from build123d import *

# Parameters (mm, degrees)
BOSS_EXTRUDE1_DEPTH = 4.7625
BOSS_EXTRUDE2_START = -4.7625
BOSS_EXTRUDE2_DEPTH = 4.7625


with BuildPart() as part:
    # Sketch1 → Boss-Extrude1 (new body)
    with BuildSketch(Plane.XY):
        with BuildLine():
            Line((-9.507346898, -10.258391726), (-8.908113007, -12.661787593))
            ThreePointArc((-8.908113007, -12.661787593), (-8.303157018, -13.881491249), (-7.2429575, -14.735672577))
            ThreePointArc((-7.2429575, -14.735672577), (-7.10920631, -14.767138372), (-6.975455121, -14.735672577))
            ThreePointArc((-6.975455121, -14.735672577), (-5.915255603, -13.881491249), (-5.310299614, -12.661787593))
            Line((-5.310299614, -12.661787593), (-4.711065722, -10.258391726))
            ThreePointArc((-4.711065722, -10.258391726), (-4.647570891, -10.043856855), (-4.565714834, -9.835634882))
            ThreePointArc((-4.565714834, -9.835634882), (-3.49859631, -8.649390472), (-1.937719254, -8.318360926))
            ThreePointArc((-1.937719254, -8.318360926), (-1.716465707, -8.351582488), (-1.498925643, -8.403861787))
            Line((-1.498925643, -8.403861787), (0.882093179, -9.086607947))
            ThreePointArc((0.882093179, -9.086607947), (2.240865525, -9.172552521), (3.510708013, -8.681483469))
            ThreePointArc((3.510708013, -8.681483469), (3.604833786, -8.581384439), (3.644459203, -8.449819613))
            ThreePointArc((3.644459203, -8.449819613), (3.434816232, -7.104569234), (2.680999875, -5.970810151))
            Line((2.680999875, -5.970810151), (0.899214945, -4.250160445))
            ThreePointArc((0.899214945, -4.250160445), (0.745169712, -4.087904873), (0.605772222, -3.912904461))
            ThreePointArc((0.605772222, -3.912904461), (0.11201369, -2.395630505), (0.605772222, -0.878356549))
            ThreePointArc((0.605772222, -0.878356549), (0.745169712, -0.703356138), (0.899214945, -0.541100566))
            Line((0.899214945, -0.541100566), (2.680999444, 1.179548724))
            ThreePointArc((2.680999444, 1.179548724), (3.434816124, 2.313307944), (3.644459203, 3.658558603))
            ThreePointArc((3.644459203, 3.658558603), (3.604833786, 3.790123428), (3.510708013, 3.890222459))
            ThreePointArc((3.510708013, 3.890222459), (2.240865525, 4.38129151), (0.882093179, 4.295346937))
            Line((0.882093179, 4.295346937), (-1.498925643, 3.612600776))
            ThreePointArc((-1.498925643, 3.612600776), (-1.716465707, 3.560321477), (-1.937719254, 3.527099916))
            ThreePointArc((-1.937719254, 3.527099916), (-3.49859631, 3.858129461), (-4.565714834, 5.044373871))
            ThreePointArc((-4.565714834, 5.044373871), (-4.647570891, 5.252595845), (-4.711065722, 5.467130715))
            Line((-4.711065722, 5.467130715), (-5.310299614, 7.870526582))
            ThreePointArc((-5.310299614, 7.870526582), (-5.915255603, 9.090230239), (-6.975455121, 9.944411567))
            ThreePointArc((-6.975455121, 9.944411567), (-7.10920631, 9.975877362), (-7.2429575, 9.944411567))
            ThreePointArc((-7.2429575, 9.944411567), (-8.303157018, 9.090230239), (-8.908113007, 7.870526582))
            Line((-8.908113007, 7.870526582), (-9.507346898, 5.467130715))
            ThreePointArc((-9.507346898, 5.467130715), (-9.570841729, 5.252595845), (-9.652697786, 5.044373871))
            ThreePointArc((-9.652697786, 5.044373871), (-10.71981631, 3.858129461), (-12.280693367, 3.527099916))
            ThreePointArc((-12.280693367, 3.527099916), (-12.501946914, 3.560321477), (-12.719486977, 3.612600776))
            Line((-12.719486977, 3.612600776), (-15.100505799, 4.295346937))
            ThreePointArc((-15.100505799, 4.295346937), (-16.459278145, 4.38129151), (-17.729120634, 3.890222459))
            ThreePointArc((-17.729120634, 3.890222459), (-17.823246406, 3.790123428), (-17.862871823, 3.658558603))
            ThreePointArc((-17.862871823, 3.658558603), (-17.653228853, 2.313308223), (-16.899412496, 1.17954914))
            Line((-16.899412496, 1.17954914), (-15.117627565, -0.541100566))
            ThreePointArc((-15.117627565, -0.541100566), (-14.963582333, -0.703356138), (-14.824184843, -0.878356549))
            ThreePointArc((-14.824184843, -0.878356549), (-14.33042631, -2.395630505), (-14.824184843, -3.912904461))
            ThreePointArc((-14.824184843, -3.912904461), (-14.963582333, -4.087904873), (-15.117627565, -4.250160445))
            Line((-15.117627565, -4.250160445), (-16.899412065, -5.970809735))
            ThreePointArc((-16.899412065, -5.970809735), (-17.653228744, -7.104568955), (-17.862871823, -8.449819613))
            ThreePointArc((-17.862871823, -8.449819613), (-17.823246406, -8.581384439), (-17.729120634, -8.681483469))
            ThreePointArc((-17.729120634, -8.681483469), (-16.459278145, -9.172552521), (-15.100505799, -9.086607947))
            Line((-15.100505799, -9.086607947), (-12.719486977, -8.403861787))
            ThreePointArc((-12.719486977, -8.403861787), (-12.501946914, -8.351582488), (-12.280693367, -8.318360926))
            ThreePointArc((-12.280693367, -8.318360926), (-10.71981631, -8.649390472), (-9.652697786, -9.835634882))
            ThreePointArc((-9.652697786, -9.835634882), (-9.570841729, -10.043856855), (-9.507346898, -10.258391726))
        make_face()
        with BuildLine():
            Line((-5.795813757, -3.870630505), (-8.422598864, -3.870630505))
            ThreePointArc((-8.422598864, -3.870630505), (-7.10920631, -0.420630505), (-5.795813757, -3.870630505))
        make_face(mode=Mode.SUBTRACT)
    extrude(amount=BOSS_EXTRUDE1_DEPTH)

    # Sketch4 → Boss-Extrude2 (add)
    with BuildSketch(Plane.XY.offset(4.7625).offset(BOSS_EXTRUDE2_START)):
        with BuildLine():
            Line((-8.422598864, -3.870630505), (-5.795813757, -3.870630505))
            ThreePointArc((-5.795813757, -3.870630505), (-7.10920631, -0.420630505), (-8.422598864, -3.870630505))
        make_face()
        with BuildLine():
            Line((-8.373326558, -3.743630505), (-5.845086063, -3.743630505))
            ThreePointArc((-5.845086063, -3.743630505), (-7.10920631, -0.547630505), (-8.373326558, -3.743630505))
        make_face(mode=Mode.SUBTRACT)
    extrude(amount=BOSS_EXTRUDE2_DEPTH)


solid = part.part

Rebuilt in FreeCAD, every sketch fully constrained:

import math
import FreeCAD as App
import Part
import Sketcher
Q = App.Units.Quantity

doc = App.newDocument("Part")
params = doc.addObject("Spreadsheet::Sheet", "Params")
for row, (alias, value) in enumerate([
    ("sketch1_radius", "0.125 in"),
    ("pad1_length", "0.1875 in"),
    ("pad2_length", "0.1875 in"),
], start=1):
    params.set(f"A{row}", alias)
    params.set(f"B{row}", "=" + value)
    params.setAlias(f"B{row}", alias)

body = doc.addObject("PartDesign::Body", "Body")

# Sketch on XY plane
sketch1 = doc.addObject("Sketcher::SketchObject", "Sketch")
body.addObject(sketch1)
sketch1.AttachmentSupport = (doc.XY_Plane, [""])
sketch1.MapMode = "FlatFace"
sketch1.addGeometry(Part.LineSegment(App.Vector(-9.507347, -10.258392, 0), App.Vector(-8.908113, -12.661788, 0)), False)
sketch1.addGeometry(Part.ArcOfCircle(Part.Circle(App.Vector(-5.827424, -11.893686, 0), App.Vector(0, 0, 1), 3.175), math.radians(-166), math.radians(-116.476921)), False)
sketch1.addGeometry(Part.ArcOfCircle(Part.Circle(App.Vector(-7.109206, -14.467138, 0), App.Vector(0, 0, 1), 0.3), math.radians(-116.476921), math.radians(-63.523078)), False)
sketch1.addGeometry(Part.ArcOfCircle(Part.Circle(App.Vector(-8.390989, -11.893686, 0), App.Vector(0, 0, 1), 3.175), math.radians(-63.523079), math.radians(-14)), False)
sketch1.addGeometry(Part.LineSegment(App.Vector(-5.3103, -12.661788, 0), App.Vector(-4.711066, -10.258392, 0)), False)
sketch1.addGeometry(Part.ArcOfCircle(Part.Circle(App.Vector(-2.209546, -10.882091, 0), App.Vector(0, 0, 1), 2.5781), math.radians(156.052343), math.radians(166)), False)
sketch1.addGeometry(Part.ArcOfCircle(Part.Circle(App.Vector(-2.209546, -10.882091, 0), App.Vector(0, 0, 1), 2.5781), math.radians(83.947657), math.radians(156.052343)), False)
sketch1.addGeometry(Part.ArcOfCircle(Part.Circle(App.Vector(-2.209546, -10.882091, 0), App.Vector(0, 0, 1), 2.5781), math.radians(74), math.radians(83.947657)), False)
sketch1.addGeometry(Part.LineSegment(App.Vector(-1.498926, -8.403862, 0), App.Vector(0.882093, -9.086608, 0)), False)
sketch1.addGeometry(Part.ArcOfCircle(Part.Circle(App.Vector(1.757242, -6.034602, 0), App.Vector(0, 0, 1), 3.175), math.radians(-106), math.radians(-56.476921)), False)
sketch1.addGeometry(Part.ArcOfCircle(Part.Circle(App.Vector(3.345026, -8.431384, 0), App.Vector(0, 0, 1), 0.3), math.radians(-56.476922), math.radians(-3.523078)), False)
sketch1.addGeometry(Part.ArcOfCircle(Part.Circle(App.Vector(0.47546, -8.254714, 0), App.Vector(0, 0, 1), 3.175), math.radians(-3.523079), math.radians(46)), False)
sketch1.addGeometry(Part.LineSegment(App.Vector(2.681, -5.97081, 0), App.Vector(0.899215, -4.25016, 0)), False)
sketch1.addGeometry(Part.ArcOfCircle(Part.Circle(App.Vector(2.690114, -2.395631, 0), App.Vector(0, 0, 1), 2.5781), math.radians(-143.947657), math.radians(-134)), False)
sketch1.addGeometry(Part.ArcOfCircle(Part.Circle(App.Vector(2.690114, -2.395631, 0), App.Vector(0, 0, 1), 2.5781), math.radians(143.947657), math.radians(216.052343)), False)
sketch1.addGeometry(Part.ArcOfCircle(Part.Circle(App.Vector(2.690114, -2.395631, 0), App.Vector(0, 0, 1), 2.5781), math.radians(134), math.radians(143.947657)), False)
sketch1.addGeometry(Part.LineSegment(App.Vector(0.899215, -0.541101, 0), App.Vector(2.680999, 1.179549, 0)), False)
sketch1.addGeometry(Part.ArcOfCircle(Part.Circle(App.Vector(0.47546, 3.463453, 0), App.Vector(0, 0, 1), 3.175), math.radians(-46.000011), math.radians(3.523079)), False)
sketch1.addGeometry(Part.ArcOfCircle(Part.Circle(App.Vector(3.345026, 3.640123, 0), App.Vector(0, 0, 1), 0.3), math.radians(3.523079), math.radians(56.476921)), False)
sketch1.addGeometry(Part.ArcOfCircle(Part.Circle(App.Vector(1.757242, 1.243341, 0), App.Vector(0, 0, 1), 3.175), math.radians(56.476921), math.radians(106)), False)
sketch1.addGeometry(Part.LineSegment(App.Vector(0.882093, 4.295347, 0), App.Vector(-1.498926, 3.612601, 0)), False)
sketch1.addGeometry(Part.ArcOfCircle(Part.Circle(App.Vector(-2.209546, 6.090829, 0), App.Vector(0, 0, 1), 2.5781), math.radians(-83.947657), math.radians(-74)), False)
sketch1.addGeometry(Part.ArcOfCircle(Part.Circle(App.Vector(-2.209546, 6.09083, 0), App.Vector(0, 0, 1), 2.5781), math.radians(-156.052343), math.radians(-83.947657)), False)
sketch1.addGeometry(Part.ArcOfCircle(Part.Circle(App.Vector(-2.209546, 6.09083, 0), App.Vector(0, 0, 1), 2.5781), math.radians(-166), math.radians(-156.052343)), False)
sketch1.addGeometry(Part.LineSegment(App.Vector(-4.711066, 5.467131, 0), App.Vector(-5.3103, 7.870527, 0)), False)
sketch1.addGeometry(Part.ArcOfCircle(Part.Circle(App.Vector(-8.390989, 7.102425, 0), App.Vector(0, 0, 1), 3.175), math.radians(14), math.radians(63.523079)), False)
sketch1.addGeometry(Part.ArcOfCircle(Part.Circle(App.Vector(-7.109206, 9.675877, 0), App.Vector(0, 0, 1), 0.3), math.radians(63.523078), math.radians(116.476921)), False)
sketch1.addGeometry(Part.ArcOfCircle(Part.Circle(App.Vector(-5.827424, 7.102425, 0), App.Vector(0, 0, 1), 3.175), math.radians(116.476921), math.radians(166)), False)
sketch1.addGeometry(Part.LineSegment(App.Vector(-8.908113, 7.870527, 0), App.Vector(-9.507347, 5.467131, 0)), False)
sketch1.addGeometry(Part.ArcOfCircle(Part.Circle(App.Vector(-12.008866, 6.09083, 0), App.Vector(0, 0, 1), 2.5781), math.radians(-23.947657), math.radians(-14)), False)
sketch1.addGeometry(Part.ArcOfCircle(Part.Circle(App.Vector(-12.008866, 6.09083, 0), App.Vector(0, 0, 1), 2.5781), math.radians(-96.052343), math.radians(-23.947657)), False)
sketch1.addGeometry(Part.ArcOfCircle(Part.Circle(App.Vector(-12.008866, 6.090829, 0), App.Vector(0, 0, 1), 2.5781), math.radians(-106), math.radians(-96.052343)), False)
sketch1.addGeometry(Part.LineSegment(App.Vector(-12.719487, 3.612601, 0), App.Vector(-15.100506, 4.295347, 0)), False)
sketch1.addGeometry(Part.ArcOfCircle(Part.Circle(App.Vector(-15.975654, 1.243341, 0), App.Vector(0, 0, 1), 3.175), math.radians(74), math.radians(123.523079)), False)
sketch1.addGeometry(Part.ArcOfCircle(Part.Circle(App.Vector(-17.563439, 3.640123, 0), App.Vector(0, 0, 1), 0.3), math.radians(123.523079), math.radians(176.476921)), False)
sketch1.addGeometry(Part.ArcOfCircle(Part.Circle(App.Vector(-14.693872, 3.463453, 0), App.Vector(0, 0, 1), 3.175), math.radians(176.476921), math.radians(226)), False)
sketch1.addGeometry(Part.LineSegment(App.Vector(-16.899412, 1.179549, 0), App.Vector(-15.117628, -0.541101, 0)), False)
sketch1.addGeometry(Part.ArcOfCircle(Part.Circle(App.Vector(-16.908526, -2.395631, 0), App.Vector(0, 0, 1), 2.5781), math.radians(36.052343), math.radians(46)), False)
sketch1.addGeometry(Part.ArcOfCircle(Part.Circle(App.Vector(-16.908526, -2.395631, 0), App.Vector(0, 0, 1), 2.5781), math.radians(-36.052343), math.radians(36.052343)), False)
sketch1.addGeometry(Part.ArcOfCircle(Part.Circle(App.Vector(-16.908526, -2.39563, 0), App.Vector(0, 0, 1), 2.5781), math.radians(-46), math.radians(-36.052343)), False)
sketch1.addGeometry(Part.LineSegment(App.Vector(-15.117628, -4.25016, 0), App.Vector(-16.899412, -5.97081, 0)), False)
sketch1.addGeometry(Part.ArcOfCircle(Part.Circle(App.Vector(-14.693872, -8.254714, 0), App.Vector(0, 0, 1), 3.175), math.radians(133.999989), math.radians(183.523079)), False)
sketch1.addGeometry(Part.ArcOfCircle(Part.Circle(App.Vector(-17.563439, -8.431384, 0), App.Vector(0, 0, 1), 0.3), math.radians(-176.476921), math.radians(-123.523079)), False)
sketch1.addGeometry(Part.ArcOfCircle(Part.Circle(App.Vector(-15.975654, -6.034602, 0), App.Vector(0, 0, 1), 3.175), math.radians(-123.523079), math.radians(-74)), False)
sketch1.addGeometry(Part.LineSegment(App.Vector(-15.100506, -9.086608, 0), App.Vector(-12.719487, -8.403862, 0)), False)
sketch1.addGeometry(Part.ArcOfCircle(Part.Circle(App.Vector(-12.008866, -10.882091, 0), App.Vector(0, 0, 1), 2.5781), math.radians(96.052343), math.radians(106)), False)
sketch1.addGeometry(Part.ArcOfCircle(Part.Circle(App.Vector(-12.008866, -10.882091, 0), App.Vector(0, 0, 1), 2.5781), math.radians(23.947657), math.radians(96.052343)), False)
sketch1.addGeometry(Part.ArcOfCircle(Part.Circle(App.Vector(-12.008866, -10.882091, 0), App.Vector(0, 0, 1), 2.5781), math.radians(14), math.radians(23.947657)), False)
sketch1.addGeometry(Part.ArcOfCircle(Part.Circle(App.Vector(-7.109206, -2.395631, 0), App.Vector(0, 0, 1), 1.975), math.radians(-48.316993), math.radians(228.316993)), False)
sketch1.addGeometry(Part.LineSegment(App.Vector(-5.795814, -3.870631, 0), App.Vector(-8.422599, -3.870631, 0)), False)
sketch1.addConstraint(Sketcher.Constraint("Tangent", 0, 2, 1, 1))
sketch1.addConstraint(Sketcher.Constraint("Tangent", 1, 2, 2, 1))
sketch1.addConstraint(Sketcher.Constraint("Tangent", 2, 2, 3, 1))
sketch1.addConstraint(Sketcher.Constraint("Tangent", 3, 2, 4, 1))
sketch1.addConstraint(Sketcher.Constraint("Tangent", 4, 2, 5, 2))
sketch1.addConstraint(Sketcher.Constraint("Tangent", 5, 1, 6, 2))
sketch1.addConstraint(Sketcher.Constraint("Tangent", 6, 1, 7, 2))
sketch1.addConstraint(Sketcher.Constraint("Tangent", 7, 1, 8, 1))
sketch1.addConstraint(Sketcher.Constraint("Tangent", 8, 2, 9, 1))
sketch1.addConstraint(Sketcher.Constraint("Tangent", 9, 2, 10, 1))
sketch1.addConstraint(Sketcher.Constraint("Tangent", 10, 2, 11, 1))
sketch1.addConstraint(Sketcher.Constraint("Tangent", 11, 2, 12, 1))
sketch1.addConstraint(Sketcher.Constraint("Tangent", 12, 2, 13, 2))
sketch1.addConstraint(Sketcher.Constraint("Tangent", 13, 1, 14, 2))
sketch1.addConstraint(Sketcher.Constraint("Tangent", 14, 1, 15, 2))
sketch1.addConstraint(Sketcher.Constraint("Tangent", 15, 1, 16, 1))
sketch1.addConstraint(Sketcher.Constraint("Tangent", 16, 2, 17, 1))
sketch1.addConstraint(Sketcher.Constraint("Tangent", 17, 2, 18, 1))
sketch1.addConstraint(Sketcher.Constraint("Tangent", 18, 2, 19, 1))
sketch1.addConstraint(Sketcher.Constraint("Tangent", 19, 2, 20, 1))
sketch1.addConstraint(Sketcher.Constraint("Tangent", 20, 2, 21, 2))
sketch1.addConstraint(Sketcher.Constraint("Tangent", 21, 1, 22, 2))
sketch1.addConstraint(Sketcher.Constraint("Tangent", 22, 1, 23, 2))
sketch1.addConstraint(Sketcher.Constraint("Tangent", 23, 1, 24, 1))
sketch1.addConstraint(Sketcher.Constraint("Tangent", 24, 2, 25, 1))
sketch1.addConstraint(Sketcher.Constraint("Tangent", 25, 2, 26, 1))
sketch1.addConstraint(Sketcher.Constraint("Tangent", 26, 2, 27, 1))
sketch1.addConstraint(Sketcher.Constraint("Tangent", 27, 2, 28, 1))
sketch1.addConstraint(Sketcher.Constraint("Tangent", 28, 2, 29, 2))
sketch1.addConstraint(Sketcher.Constraint("Tangent", 29, 1, 30, 2))
sketch1.addConstraint(Sketcher.Constraint("Tangent", 30, 1, 31, 2))
sketch1.addConstraint(Sketcher.Constraint("Tangent", 31, 1, 32, 1))
sketch1.addConstraint(Sketcher.Constraint("Tangent", 32, 2, 33, 1))
sketch1.addConstraint(Sketcher.Constraint("Tangent", 33, 2, 34, 1))
sketch1.addConstraint(Sketcher.Constraint("Tangent", 34, 2, 35, 1))
sketch1.addConstraint(Sketcher.Constraint("Tangent", 35, 2, 36, 1))
sketch1.addConstraint(Sketcher.Constraint("Tangent", 36, 2, 37, 2))
sketch1.addConstraint(Sketcher.Constraint("Tangent", 37, 1, 38, 2))
sketch1.addConstraint(Sketcher.Constraint("Tangent", 38, 1, 39, 2))
sketch1.addConstraint(Sketcher.Constraint("Tangent", 39, 1, 40, 1))
sketch1.addConstraint(Sketcher.Constraint("Tangent", 40, 2, 41, 1))
sketch1.addConstraint(Sketcher.Constraint("Tangent", 41, 2, 42, 1))
sketch1.addConstraint(Sketcher.Constraint("Tangent", 42, 2, 43, 1))
sketch1.addConstraint(Sketcher.Constraint("Tangent", 43, 2, 44, 1))
sketch1.addConstraint(Sketcher.Constraint("Tangent", 44, 2, 45, 2))
sketch1.addConstraint(Sketcher.Constraint("Tangent", 45, 1, 46, 2))
sketch1.addConstraint(Sketcher.Constraint("Tangent", 46, 1, 47, 2))
sketch1.addConstraint(Sketcher.Constraint("Tangent", 47, 1, 0, 1))
sketch1.addConstraint(Sketcher.Constraint("Coincident", 48, 1, 49, 1))
sketch1.addConstraint(Sketcher.Constraint("Coincident", 49, 2, 48, 2))
sketch1.addConstraint(Sketcher.Constraint("Horizontal", 49))
sketch1.addConstraint(Sketcher.Constraint("Coincident", 7, 3, 5, 3))
sketch1.addConstraint(Sketcher.Constraint("Coincident", 15, 3, 13, 3))
sketch1.addConstraint(Sketcher.Constraint("Coincident", 23, 3, 21, 3))
sketch1.addConstraint(Sketcher.Constraint("Coincident", 31, 3, 29, 3))
sketch1.addConstraint(Sketcher.Constraint("Coincident", 39, 3, 37, 3))
sketch1.addConstraint(Sketcher.Constraint("Coincident", 47, 3, 45, 3))
sketch1.addConstraint(Sketcher.Constraint("Equal", 1, 3))
sketch1.addConstraint(Sketcher.Constraint("Equal", 3, 9))
sketch1.addConstraint(Sketcher.Constraint("Equal", 2, 10))
sketch1.addConstraint(Sketcher.Constraint("Equal", 9, 11))
sketch1.addConstraint(Sketcher.Constraint("Equal", 7, 13))
sketch1.addConstraint(Sketcher.Constraint("Equal", 11, 17))
sketch1.addConstraint(Sketcher.Constraint("Equal", 10, 18))
sketch1.addConstraint(Sketcher.Constraint("Equal", 17, 19))
sketch1.addConstraint(Sketcher.Constraint("Equal", 15, 21))
sketch1.addConstraint(Sketcher.Constraint("Equal", 19, 25))
sketch1.addConstraint(Sketcher.Constraint("Equal", 18, 26))
sketch1.addConstraint(Sketcher.Constraint("Equal", 25, 27))
sketch1.addConstraint(Sketcher.Constraint("Equal", 23, 29))
sketch1.addConstraint(Sketcher.Constraint("Equal", 27, 33))
sketch1.addConstraint(Sketcher.Constraint("Equal", 26, 34))
sketch1.addConstraint(Sketcher.Constraint("Equal", 33, 35))
sketch1.addConstraint(Sketcher.Constraint("Equal", 31, 37))
sketch1.addConstraint(Sketcher.Constraint("Equal", 35, 41))
sketch1.addConstraint(Sketcher.Constraint("Equal", 34, 42))
sketch1.addConstraint(Sketcher.Constraint("Equal", 41, 43))
sketch1.addConstraint(Sketcher.Constraint("Equal", 39, 45))
sketch1.addConstraint(Sketcher.Constraint("Parallel", 0, 24))
sketch1.addConstraint(Sketcher.Constraint("Parallel", 4, 28))
sketch1.addConstraint(Sketcher.Constraint("Parallel", 8, 32))
sketch1.addConstraint(Sketcher.Constraint("Parallel", 12, 36))
sketch1.addConstraint(Sketcher.Constraint("Parallel", 16, 40))
sketch1.addConstraint(Sketcher.Constraint("Parallel", 20, 44))
sketch1.addConstraint(Sketcher.Constraint("Horizontal", 1, 3, 3, 3))
sketch1.addConstraint(Sketcher.Constraint("Horizontal", 25, 3, 27, 3))
sketch1.addConstraint(Sketcher.Constraint("Horizontal", 23, 3, 29, 3))
sketch1.addConstraint(Sketcher.Constraint("Horizontal", 19, 3, 33, 3))
sketch1.addConstraint(Sketcher.Constraint("Horizontal", 18, 3, 34, 3))
sketch1.addConstraint(Sketcher.Constraint("Horizontal", 17, 3, 35, 3))
sketch1.addConstraint(Sketcher.Constraint("Horizontal", 15, 3, 37, 3))
sketch1.addConstraint(Sketcher.Constraint("Horizontal", 11, 3, 41, 3))
sketch1.addConstraint(Sketcher.Constraint("Horizontal", 10, 3, 42, 3))
sketch1.addConstraint(Sketcher.Constraint("Horizontal", 9, 3, 43, 3))
sketch1.addConstraint(Sketcher.Constraint("Horizontal", 7, 3, 45, 3))
sketch1.addConstraint(Sketcher.Constraint("Horizontal", 39, 3, 48, 3))
sketch1.addConstraint(Sketcher.Constraint("Horizontal", 0, 2, 3, 2))
sketch1.addConstraint(Sketcher.Constraint("Horizontal", 22, 1, 29, 1))
sketch1.addConstraint(Sketcher.Constraint("Horizontal", 21, 1, 30, 1))
sketch1.addConstraint(Sketcher.Constraint("Horizontal", 20, 2, 31, 1))
sketch1.addConstraint(Sketcher.Constraint("Horizontal", 16, 2, 35, 2))
sketch1.addConstraint(Sketcher.Constraint("Horizontal", 14, 1, 37, 1))
sketch1.addConstraint(Sketcher.Constraint("Horizontal", 13, 1, 38, 1))
sketch1.addConstraint(Sketcher.Constraint("Horizontal", 6, 1, 45, 1))
sketch1.addConstraint(Sketcher.Constraint("Horizontal", 5, 1, 46, 1))
sketch1.addConstraint(Sketcher.Constraint("Vertical", 11, 3, 17, 3))
sketch1.addConstraint(Sketcher.Constraint("Vertical", 10, 3, 18, 3))
sketch1.addConstraint(Sketcher.Constraint("Vertical", 9, 3, 19, 3))
sketch1.addConstraint(Sketcher.Constraint("Vertical", 7, 3, 21, 3))
sketch1.addConstraint(Sketcher.Constraint("Vertical", 3, 3, 25, 3))
sketch1.addConstraint(Sketcher.Constraint("Vertical", 26, 3, 48, 3))
sketch1.addConstraint(Sketcher.Constraint("Vertical", 13, 1, 14, 1))
sketch1.addConstraint(Sketcher.Constraint("Vertical", 6, 1, 21, 1))
sketch1.addConstraint(Sketcher.Constraint("Vertical", 5, 1, 22, 1))
sketch1.addConstraint(Sketcher.Constraint("Equal", 4, 8))
sketch1.addConstraint(Sketcher.Constraint("Equal", 8, 12))
sketch1.addConstraint(Sketcher.Constraint("Angle", 0, Q("-76 deg")))
sketch1.addConstraint(Sketcher.Constraint("Angle", 8, Q("-16 deg")))
sketch1.addConstraint(Sketcher.Constraint("Angle", 12, Q("136 deg")))
sketch1.addConstraint(Sketcher.Constraint("Radius", 1, Q("0.125 in")))
sketch1.addConstraint(Sketcher.Constraint("Radius", 5, Q("0.1015 in")))
sketch1.addConstraint(Sketcher.Constraint("Radius", 2, Q("0.3 mm")))
sketch1.addConstraint(Sketcher.Constraint("Radius", 48, Q("1.975 mm")))
sketch1.addConstraint(Sketcher.Constraint("DistanceX", 3, 2, -1, 1, Q("5.3103 mm")))
sketch1.addConstraint(Sketcher.Constraint("DistanceX", -1, 1, 11, 2, Q("2.681 mm")))
sketch1.addConstraint(Sketcher.Constraint("DistanceY", 15, 1, -1, 1, Q("0.541101 mm")))
sketch1.addConstraint(Sketcher.Constraint("DistanceY", -1, 1, 20, 2, Q("3.612601 mm")))
sketch1.addConstraint(Sketcher.Constraint("DistanceY", -1, 1, 21, 1, Q("3.5271 mm")))
sketch1.addConstraint(Sketcher.Constraint("DistanceX", 49, 2, -1, 1, Q("8.422599 mm")))
sketch1.addConstraint(Sketcher.Constraint("Distance", 16, Q("2.476972 mm")))
sketch1.addConstraint(Sketcher.Constraint("DistanceX", 49, 2, 49, 1, Q("2.626785 mm")))
sketch1.addConstraint(Sketcher.Constraint("DistanceX", 5, 1, -1, 1, Q("4.565715 mm")))
sketch1.addConstraint(Sketcher.Constraint("DistanceX", -1, 1, 13, 1, Q("0.605772 mm")))
sketch1.setExpression("Constraints[119]", "Params.sketch1_radius")
pad1 = doc.addObject("PartDesign::Pad", "Pad")
body.addObject(pad1)
pad1.Profile = sketch1
pad1.setExpression("Length", "Params.pad1_length")

# Sketch on XY plane
sketch2 = doc.addObject("Sketcher::SketchObject", "Sketch001")
body.addObject(sketch2)
sketch2.AttachmentSupport = (doc.XY_Plane, [""])
sketch2.MapMode = "FlatFace"
sketch2.addGeometry(Part.LineSegment(App.Vector(-8.422599, -3.870631, 0), App.Vector(-5.795814, -3.870631, 0)), False)
sketch2.addGeometry(Part.ArcOfCircle(Part.Circle(App.Vector(-7.109206, -2.395631, 0), App.Vector(0, 0, 1), 1.975), math.radians(-48.316993), math.radians(228.316993)), False)
sketch2.addGeometry(Part.LineSegment(App.Vector(-5.845086, -3.743631, 0), App.Vector(-8.373327, -3.743631, 0)), False)
sketch2.addGeometry(Part.ArcOfCircle(Part.Circle(App.Vector(-7.109206, -2.395631, 0), App.Vector(0, 0, 1), 1.848), math.radians(-46.839236), math.radians(226.839236)), False)
sketch2.addConstraint(Sketcher.Constraint("Coincident", 0, 1, 1, 2))
sketch2.addConstraint(Sketcher.Constraint("Coincident", 1, 1, 0, 2))
sketch2.addConstraint(Sketcher.Constraint("Coincident", 2, 1, 3, 1))
sketch2.addConstraint(Sketcher.Constraint("Coincident", 3, 2, 2, 2))
sketch2.addConstraint(Sketcher.Constraint("Horizontal", 0))
sketch2.addConstraint(Sketcher.Constraint("Horizontal", 2))
sketch2.addConstraint(Sketcher.Constraint("Coincident", 3, 3, 1, 3))
sketch2.addConstraint(Sketcher.Constraint("Radius", 1, Q("1.975 mm")))
sketch2.addConstraint(Sketcher.Constraint("Radius", 3, Q("1.848 mm")))
sketch2.addConstraint(Sketcher.Constraint("DistanceY", 1, 1, 2, 1, Q("0.005 in")))
sketch2.addConstraint(Sketcher.Constraint("DistanceX", 2, 2, 2, 1, Q("2.52824 mm")))
sketch2.addConstraint(Sketcher.Constraint("DistanceX", 0, 1, -1, 1, Q("8.422599 mm")))
sketch2.addConstraint(Sketcher.Constraint("DistanceY", 1, 3, -1, 1, Q("2.395631 mm")))
pad2 = doc.addObject("PartDesign::Pad", "Pad001")
body.addObject(pad2)
pad2.Profile = sketch2
pad2.setExpression("Length", "Params.pad2_length")

doc.recompute()
